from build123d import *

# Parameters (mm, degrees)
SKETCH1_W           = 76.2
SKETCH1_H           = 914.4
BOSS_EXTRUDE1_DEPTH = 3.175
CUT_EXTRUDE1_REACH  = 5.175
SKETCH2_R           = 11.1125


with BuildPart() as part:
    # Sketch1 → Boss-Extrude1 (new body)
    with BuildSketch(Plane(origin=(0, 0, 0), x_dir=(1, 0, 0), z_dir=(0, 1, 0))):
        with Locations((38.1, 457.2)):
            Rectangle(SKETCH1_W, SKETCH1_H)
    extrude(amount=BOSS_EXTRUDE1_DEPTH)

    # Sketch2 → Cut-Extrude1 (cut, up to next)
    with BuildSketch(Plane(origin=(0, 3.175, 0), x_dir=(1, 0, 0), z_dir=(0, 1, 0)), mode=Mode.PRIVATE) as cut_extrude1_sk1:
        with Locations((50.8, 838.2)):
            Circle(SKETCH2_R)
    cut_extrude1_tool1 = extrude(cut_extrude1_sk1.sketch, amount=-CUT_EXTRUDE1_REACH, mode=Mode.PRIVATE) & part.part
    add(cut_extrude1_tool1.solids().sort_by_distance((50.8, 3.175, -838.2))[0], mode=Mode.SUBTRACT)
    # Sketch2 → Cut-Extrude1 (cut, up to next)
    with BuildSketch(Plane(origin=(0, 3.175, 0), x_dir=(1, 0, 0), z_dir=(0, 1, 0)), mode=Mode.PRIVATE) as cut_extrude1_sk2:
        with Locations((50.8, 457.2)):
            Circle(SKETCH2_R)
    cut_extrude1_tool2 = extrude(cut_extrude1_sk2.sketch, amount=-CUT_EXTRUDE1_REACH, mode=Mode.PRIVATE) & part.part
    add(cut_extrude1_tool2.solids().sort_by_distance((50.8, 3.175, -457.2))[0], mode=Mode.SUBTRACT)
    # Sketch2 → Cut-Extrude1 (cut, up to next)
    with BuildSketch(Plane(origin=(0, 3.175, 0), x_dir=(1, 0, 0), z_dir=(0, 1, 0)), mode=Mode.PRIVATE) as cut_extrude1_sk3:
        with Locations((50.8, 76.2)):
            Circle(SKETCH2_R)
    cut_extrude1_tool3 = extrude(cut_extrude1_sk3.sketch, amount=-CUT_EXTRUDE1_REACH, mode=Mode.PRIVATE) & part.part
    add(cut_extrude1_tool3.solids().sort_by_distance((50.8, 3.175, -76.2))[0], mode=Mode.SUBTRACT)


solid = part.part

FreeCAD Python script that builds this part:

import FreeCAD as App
import Part
import Sketcher
from FreeCAD import Vector
Q = App.Units.Quantity


def add_polygon(sketch, points):
    """Adds a closed chain of lines whose ends are joined by coincident constraints."""
    first, n = sketch.GeometryCount, len(points)
    for a, b in zip(points, points[1:] + points[:1]):
        sketch.addGeometry(Part.LineSegment(App.Vector(*a, 0), App.Vector(*b, 0)), False)
    for i in range(n):
        sketch.addConstraint(Sketcher.Constraint("Coincident", first + i, 2, first + (i + 1) % n, 1))

doc = App.newDocument("Part")
params = doc.addObject("Spreadsheet::Sheet", "Params")
for row, (alias, value) in enumerate([
    ("sketch1_width", "3 in"),
    ("sketch1_height", "36 in"),
    ("pad1_length", "0.125 in"),
    ("sketch2_diameter", "0.875 in"),
    ("sketch3_diameter", "0.875 in"),
    ("sketch4_diameter", "0.875 in"),
], start=1):
    params.set(f"A{row}", alias)
    params.set(f"B{row}", "=" + value)
    params.setAlias(f"B{row}", alias)

body = doc.addObject("PartDesign::Body", "Body")

# Sketch on XZ plane
sketch1 = doc.addObject("Sketcher::SketchObject", "Sketch")
body.addObject(sketch1)
sketch1.AttachmentSupport = (doc.XZ_Plane, [""])
sketch1.MapMode = "FlatFace"
add_polygon(sketch1, [(0, -914), (0, 0), (76, 0), (76, -914)])  # lines 0-3
sketch1.addConstraint([
    Sketcher.Constraint("Vertical", 0),
    Sketcher.Constraint("Horizontal", 1),
    Sketcher.Constraint("Vertical", 2),
    Sketcher.Constraint("Horizontal", 3),
    Sketcher.Constraint("Coincident", 0, 2, -1, 1),
    Sketcher.Constraint("DistanceX", 1, 1, 1, 2, Q("3 in")),
    Sketcher.Constraint("DistanceY", 0, 1, 0, 2, Q("36 in")),
])
sketch1.setExpression("Constraints[9]", "Params.sketch1_width")
sketch1.setExpression("Constraints[10]", "Params.sketch1_height")
pad1 = doc.addObject("PartDesign::Pad", "Pad")
body.addObject(pad1)
pad1.Profile = sketch1
pad1.setExpression("Length", "Params.pad1_length")
pad1.Reversed = True

# Sketch on XZ plane
sketch2 = doc.addObject("Sketcher::SketchObject", "Sketch001")
body.addObject(sketch2)
sketch2.AttachmentSupport = (doc.XZ_Plane, [""])
sketch2.MapMode = "FlatFace"
sketch2.AttachmentOffset = App.Placement(Vector(0, 0, -0.125 * 25.4), App.Rotation())
sketch2.addGeometry(Part.Circle(Vector(51, -838, 0), Vector(0, 0, 1), 11), False)
sketch2.addConstraint([
    Sketcher.Constraint("Diameter", 0, Q("0.875 in")),
    Sketcher.Constraint("DistanceX", -1, 1, 0, 3, Q("2 in")),
    Sketcher.Constraint("DistanceY", 0, 3, -1, 1, Q("33 in")),
])
sketch2.setExpression("Constraints[0]", "Params.sketch2_diameter")
pocket1 = doc.addObject("PartDesign::Pocket", "Pocket")
body.addObject(pocket1)
pocket1.Profile = sketch2
pocket1.Type = "UpToFirst"
pocket1.Reversed = True

# Sketch on XZ plane
sketch3 = doc.addObject("Sketcher::SketchObject", "Sketch002")
body.addObject(sketch3)
sketch3.AttachmentSupport = (doc.XZ_Plane, [""])
sketch3.MapMode = "FlatFace"
sketch3.AttachmentOffset = App.Placement(Vector(0, 0, -0.125 * 25.4), App.Rotation())
sketch3.addGeometry(Part.Circle(Vector(51, -457, 0), Vector(0, 0, 1), 11), False)
sketch3.addConstraint([
    Sketcher.Constraint("Diameter", 0, Q("0.875 in")),
    Sketcher.Constraint("DistanceX", -1, 1, 0, 3, Q("2 in")),
    Sketcher.Constraint("DistanceY", 0, 3, -1, 1, Q("18 in")),
])
sketch3.setExpression("Constraints[0]", "Params.sketch3_diameter")
pocket2 = doc.addObject("PartDesign::Pocket", "Pocket001")
body.addObject(pocket2)
pocket2.Profile = sketch3
pocket2.Type = "UpToFirst"
pocket2.Reversed = True

# Sketch on XZ plane
sketch4 = doc.addObject("Sketcher::SketchObject", "Sketch003")
body.addObject(sketch4)
sketch4.AttachmentSupport = (doc.XZ_Plane, [""])
sketch4.MapMode = "FlatFace"
sketch4.AttachmentOffset = App.Placement(Vector(0, 0, -0.125 * 25.4), App.Rotation())
sketch4.addGeometry(Part.Circle(Vector(51, -76, 0), Vector(0, 0, 1), 11), False)
sketch4.addConstraint([
    Sketcher.Constraint("Diameter", 0, Q("0.875 in")),
    Sketcher.Constraint("DistanceX", -1, 1, 0, 3, Q("2 in")),
    Sketcher.Constraint("DistanceY", 0, 3, -1, 1, Q("3 in")),
])
sketch4.setExpression("Constraints[0]", "Params.sketch4_diameter")
pocket3 = doc.addObject("PartDesign::Pocket", "Pocket002")
body.addObject(pocket3)
pocket3.Profile = sketch4
pocket3.Type = "UpToFirst"
pocket3.Reversed = True

doc.recompute()
